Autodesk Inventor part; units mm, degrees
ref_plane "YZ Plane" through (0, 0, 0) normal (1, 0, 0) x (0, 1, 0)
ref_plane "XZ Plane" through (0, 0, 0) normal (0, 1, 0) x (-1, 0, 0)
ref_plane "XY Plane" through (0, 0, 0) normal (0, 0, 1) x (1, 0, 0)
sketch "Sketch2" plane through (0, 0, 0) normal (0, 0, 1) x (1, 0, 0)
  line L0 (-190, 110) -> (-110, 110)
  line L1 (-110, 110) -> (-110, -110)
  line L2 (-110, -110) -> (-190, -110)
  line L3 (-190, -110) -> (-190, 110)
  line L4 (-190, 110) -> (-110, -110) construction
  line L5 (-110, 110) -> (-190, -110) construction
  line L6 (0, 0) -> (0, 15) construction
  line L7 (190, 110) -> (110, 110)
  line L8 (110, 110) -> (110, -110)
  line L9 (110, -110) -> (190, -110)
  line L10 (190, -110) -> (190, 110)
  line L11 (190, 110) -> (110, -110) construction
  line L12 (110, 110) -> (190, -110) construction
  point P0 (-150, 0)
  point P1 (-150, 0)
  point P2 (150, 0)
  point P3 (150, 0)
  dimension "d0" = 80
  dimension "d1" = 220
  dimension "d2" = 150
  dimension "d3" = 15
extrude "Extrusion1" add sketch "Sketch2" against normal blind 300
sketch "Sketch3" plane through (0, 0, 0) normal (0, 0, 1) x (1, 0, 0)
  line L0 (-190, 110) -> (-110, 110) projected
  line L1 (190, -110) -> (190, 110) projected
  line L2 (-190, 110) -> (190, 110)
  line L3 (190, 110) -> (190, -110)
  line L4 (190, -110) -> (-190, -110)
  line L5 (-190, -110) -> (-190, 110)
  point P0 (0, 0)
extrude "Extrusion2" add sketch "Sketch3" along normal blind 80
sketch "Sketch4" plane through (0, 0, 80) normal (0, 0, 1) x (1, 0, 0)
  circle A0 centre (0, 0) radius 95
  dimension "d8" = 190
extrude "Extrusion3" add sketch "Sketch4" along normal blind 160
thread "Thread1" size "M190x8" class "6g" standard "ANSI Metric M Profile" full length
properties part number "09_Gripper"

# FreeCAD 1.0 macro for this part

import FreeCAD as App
import Part
import Sketcher

doc = App.newDocument("Part")
body = doc.addObject("PartDesign::Body", "Body")
body.AllowCompound = True

# Sketch on XY plane
sketch1 = body.newObject("Sketcher::SketchObject", "Sketch")
sketch1.AttachmentSupport = (doc.getObject("XY_Plane"), [""])
sketch1.MapMode = "FlatFace"
sketch1.addGeometry([
    Part.LineSegment(App.Vector(-110, 110, 0), App.Vector(-190, 110, 0)),  # 0
    Part.LineSegment(App.Vector(-190, 110, 0), App.Vector(-190, -110, 0)),  # 1
    Part.LineSegment(App.Vector(-190, -110, 0), App.Vector(-110, -110, 0)),  # 2
    Part.LineSegment(App.Vector(-110, -110, 0), App.Vector(-110, 110, 0)),  # 3
    Part.LineSegment(App.Vector(190, -110, 0), App.Vector(190, 110, 0)),  # 4
    Part.LineSegment(App.Vector(190, 110, 0), App.Vector(110, 110, 0)),  # 5
    Part.LineSegment(App.Vector(110, 110, 0), App.Vector(110, -110, 0)),  # 6
    Part.LineSegment(App.Vector(110, -110, 0), App.Vector(190, -110, 0)),  # 7
], False)
sketch1.addConstraint([
    Sketcher.Constraint("Coincident", 0, 2, 1, 1),
    Sketcher.Constraint("Coincident", 1, 2, 2, 1),
    Sketcher.Constraint("Coincident", 2, 2, 3, 1),
    Sketcher.Constraint("Coincident", 3, 2, 0, 1),
    Sketcher.Constraint("Coincident", 4, 2, 5, 1),
    Sketcher.Constraint("Coincident", 5, 2, 6, 1),
    Sketcher.Constraint("Coincident", 6, 2, 7, 1),
    Sketcher.Constraint("Coincident", 7, 2, 4, 1),
    Sketcher.Constraint("Horizontal", 0),
    Sketcher.Constraint("Vertical", 1),
    Sketcher.Constraint("Horizontal", 2),
    Sketcher.Constraint("Vertical", 3),
    Sketcher.Constraint("Vertical", 4),
    Sketcher.Constraint("Horizontal", 5),
    Sketcher.Constraint("Vertical", 6),
    Sketcher.Constraint("Horizontal", 7),
    Sketcher.Constraint("Symmetric", 1, 2, 4, 2, -1, 1),
    Sketcher.Constraint("Symmetric", 3, 2, 6, 2, -1, 1),
    Sketcher.Constraint("Horizontal", 3, 2, 4, 2),
    Sketcher.Constraint("DistanceX", 0, 2, 0, 1, 80.0),
    Sketcher.Constraint("DistanceY", 1, 2, 1, 1, 220.0),
    Sketcher.Constraint("DistanceX", 3, 2, 5, 2, 220.0),
])
pad1 = body.newObject("PartDesign::Pad", "Pad")
pad1.Profile = sketch1
pad1.Length = 300
pad1.Reversed = True

# Sketch on XY plane
sketch2 = body.newObject("Sketcher::SketchObject", "Sketch001")
sketch2.AttachmentSupport = (doc.getObject("XY_Plane"), [""])
sketch2.MapMode = "FlatFace"
sketch2.addGeometry([
    Part.LineSegment(App.Vector(190, 110, 0), App.Vector(-190, 110, 0)),
    Part.LineSegment(App.Vector(-190, 110, 0), App.Vector(-190, -110, 0)),
    Part.LineSegment(App.Vector(-190, -110, 0), App.Vector(190, -110, 0)),
    Part.LineSegment(App.Vector(190, -110, 0), App.Vector(190, 110, 0)),
], False)
sketch2.addConstraint([
    Sketcher.Constraint("Coincident", 0, 2, 1, 1),
    Sketcher.Constraint("Coincident", 1, 2, 2, 1),
    Sketcher.Constraint("Coincident", 2, 2, 3, 1),
    Sketcher.Constraint("Coincident", 3, 2, 0, 1),
    Sketcher.Constraint("Horizontal", 0),
    Sketcher.Constraint("Vertical", 1),
    Sketcher.Constraint("Horizontal", 2),
    Sketcher.Constraint("Vertical", 3),
    Sketcher.Constraint("Symmetric", 0, 2, 2, 2, -1, 1),
    Sketcher.Constraint("DistanceX", 0, 2, 0, 1, 380.0),
    Sketcher.Constraint("DistanceY", 1, 2, 1, 1, 220.0),
])
pad2 = body.newObject("PartDesign::Pad", "Pad001")
pad2.Profile = sketch2
pad2.Length = 80

# Sketch on XY plane
sketch3 = body.newObject("Sketcher::SketchObject", "Sketch002")
sketch3.AttachmentSupport = (doc.getObject("XY_Plane"), [""])
sketch3.MapMode = "FlatFace"
sketch3.AttachmentOffset = App.Placement(App.Vector(0, 0, 80), App.Rotation())
sketch3.addGeometry(Part.Circle(App.Vector(0, 0, 0), App.Vector(0, 0, 1), 95), False)
sketch3.addConstraint([
    Sketcher.Constraint("Coincident", 0, 3, -1, 1),
    Sketcher.Constraint("Diameter", 0, 190.0),
])
pad3 = body.newObject("PartDesign::Pad", "Pad002")
pad3.Profile = sketch3
pad3.Length = 160

doc.recompute()
